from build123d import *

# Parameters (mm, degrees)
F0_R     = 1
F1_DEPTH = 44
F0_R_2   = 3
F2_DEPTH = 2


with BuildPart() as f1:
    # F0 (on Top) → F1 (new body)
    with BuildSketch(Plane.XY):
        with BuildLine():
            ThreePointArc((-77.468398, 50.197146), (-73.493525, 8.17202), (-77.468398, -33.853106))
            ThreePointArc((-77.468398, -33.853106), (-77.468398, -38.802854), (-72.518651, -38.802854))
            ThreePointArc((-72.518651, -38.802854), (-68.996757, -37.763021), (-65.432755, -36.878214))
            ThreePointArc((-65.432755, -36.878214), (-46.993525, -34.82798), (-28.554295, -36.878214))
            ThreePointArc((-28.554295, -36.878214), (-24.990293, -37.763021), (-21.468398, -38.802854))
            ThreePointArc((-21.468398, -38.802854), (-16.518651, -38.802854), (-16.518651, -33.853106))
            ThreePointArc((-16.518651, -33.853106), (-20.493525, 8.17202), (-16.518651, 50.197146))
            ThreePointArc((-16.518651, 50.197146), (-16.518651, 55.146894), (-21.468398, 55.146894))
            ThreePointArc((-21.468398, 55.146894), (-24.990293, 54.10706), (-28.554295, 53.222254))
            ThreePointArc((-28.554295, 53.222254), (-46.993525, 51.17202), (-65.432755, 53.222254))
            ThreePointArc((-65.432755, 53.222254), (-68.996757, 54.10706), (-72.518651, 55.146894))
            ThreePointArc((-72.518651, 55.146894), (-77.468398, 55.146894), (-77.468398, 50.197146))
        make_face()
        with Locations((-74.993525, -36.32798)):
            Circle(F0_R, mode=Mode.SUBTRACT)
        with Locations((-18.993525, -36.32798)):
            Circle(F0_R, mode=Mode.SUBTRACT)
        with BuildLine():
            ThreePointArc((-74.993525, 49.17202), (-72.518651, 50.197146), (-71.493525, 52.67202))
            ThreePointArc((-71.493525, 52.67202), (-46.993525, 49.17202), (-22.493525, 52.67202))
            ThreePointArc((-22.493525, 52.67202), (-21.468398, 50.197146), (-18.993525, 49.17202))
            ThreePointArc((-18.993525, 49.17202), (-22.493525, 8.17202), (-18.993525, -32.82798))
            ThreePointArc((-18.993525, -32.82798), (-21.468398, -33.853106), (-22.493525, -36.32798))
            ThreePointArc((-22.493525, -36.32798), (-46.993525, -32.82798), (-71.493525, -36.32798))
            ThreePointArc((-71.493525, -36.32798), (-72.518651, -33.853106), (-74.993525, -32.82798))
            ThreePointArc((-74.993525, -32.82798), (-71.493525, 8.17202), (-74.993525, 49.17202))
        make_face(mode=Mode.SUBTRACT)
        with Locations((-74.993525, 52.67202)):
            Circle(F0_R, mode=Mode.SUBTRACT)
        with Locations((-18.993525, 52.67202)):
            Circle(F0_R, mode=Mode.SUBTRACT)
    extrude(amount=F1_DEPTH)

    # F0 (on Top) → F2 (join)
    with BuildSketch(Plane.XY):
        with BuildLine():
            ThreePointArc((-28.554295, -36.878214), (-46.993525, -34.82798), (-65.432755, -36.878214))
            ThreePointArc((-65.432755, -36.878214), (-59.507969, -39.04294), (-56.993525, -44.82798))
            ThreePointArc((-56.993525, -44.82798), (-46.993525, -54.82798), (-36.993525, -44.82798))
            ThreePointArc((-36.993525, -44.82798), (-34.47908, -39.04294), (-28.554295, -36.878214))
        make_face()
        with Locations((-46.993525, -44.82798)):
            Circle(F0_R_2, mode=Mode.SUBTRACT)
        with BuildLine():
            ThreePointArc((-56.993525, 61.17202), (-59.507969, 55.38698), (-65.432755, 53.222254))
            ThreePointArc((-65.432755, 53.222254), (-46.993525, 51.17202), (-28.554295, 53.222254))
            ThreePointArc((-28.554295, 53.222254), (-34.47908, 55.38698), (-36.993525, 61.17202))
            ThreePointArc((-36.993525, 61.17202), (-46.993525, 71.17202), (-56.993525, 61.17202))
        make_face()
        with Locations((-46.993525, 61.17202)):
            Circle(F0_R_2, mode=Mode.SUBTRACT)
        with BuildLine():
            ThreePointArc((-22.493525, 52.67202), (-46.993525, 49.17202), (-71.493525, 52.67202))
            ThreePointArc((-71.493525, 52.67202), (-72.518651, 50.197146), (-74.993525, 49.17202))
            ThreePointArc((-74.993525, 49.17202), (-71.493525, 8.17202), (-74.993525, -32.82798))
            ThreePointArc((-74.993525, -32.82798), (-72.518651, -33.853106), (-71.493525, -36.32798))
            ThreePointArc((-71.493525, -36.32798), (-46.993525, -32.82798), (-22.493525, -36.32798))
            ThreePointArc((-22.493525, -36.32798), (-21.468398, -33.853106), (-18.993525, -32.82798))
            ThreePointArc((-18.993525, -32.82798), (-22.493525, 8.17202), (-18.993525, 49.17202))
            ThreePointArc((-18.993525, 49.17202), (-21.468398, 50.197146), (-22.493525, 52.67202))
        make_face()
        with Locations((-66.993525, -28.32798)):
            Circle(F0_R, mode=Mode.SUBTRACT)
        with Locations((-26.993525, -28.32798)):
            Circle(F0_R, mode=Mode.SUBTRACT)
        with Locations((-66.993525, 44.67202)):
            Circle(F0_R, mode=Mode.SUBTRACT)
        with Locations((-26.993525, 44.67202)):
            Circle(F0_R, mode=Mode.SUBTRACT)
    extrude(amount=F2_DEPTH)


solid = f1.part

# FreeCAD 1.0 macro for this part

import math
import FreeCAD as App
import Part
import Sketcher

V = App.Vector
Q = App.Units.Quantity

doc = App.newDocument("Part")
params = doc.addObject("Spreadsheet::Sheet", "Params")
for row, (alias, value) in enumerate([
    ("sketch1_diameter", "2 mm"),
    ("sketch1_diameter2", "2 mm"),
    ("sketch1_diameter3", "2 mm"),
    ("sketch1_diameter4", "2 mm"),
    ("sketch1_radius", "3.5 mm"),
    ("pad1_length", "44 mm"),
    ("sketch2_diameter", "6 mm"),
    ("sketch2_diameter2", "2 mm"),
    ("sketch2_radius", "7.999999 mm"),
    ("sketch2_radius2", "10 mm"),
    ("sketch2_radius3", "87.5 mm"),
    ("pad2_length", "2 mm"),
], start=1):
    params.set(f"A{row}", alias)
    params.set(f"B{row}", "=" + value)
    params.setAlias(f"B{row}", alias)

body = doc.addObject("PartDesign::Body", "Body")

# Sketch on XY plane
sketch1 = body.newObject("Sketcher::SketchObject", "Sketch")
sketch1.AttachmentSupport = (doc.getObject("XY_Plane"), [""])
sketch1.MapMode = "FlatFace"
sketch1.addGeometry([
    Part.ArcOfCircle(Part.Circle(V(-297.640414, 8.17202, 0), V(0, 0, 1), 224.146889), math.radians(-10.806294), math.radians(10.806294)),  # 0
    Part.ArcOfCircle(Part.Circle(V(-74.993525, -36.32798, 0), V(0, 0, 1), 3.5), math.radians(134.999994), math.radians(314.999994)),  # 1
    Part.ArcOfCircle(Part.Circle(V(-46.993488, -118.771872, 0), V(0, 0, 1), 83.943897), math.radians(102.689169), math.radians(107.702467)),  # 2
    Part.ArcOfCircle(Part.Circle(V(-46.993525, -118.77173, 0), V(0, 0, 1), 83.94375), math.radians(77.310834), math.radians(102.689166)),  # 3
    Part.ArcOfCircle(Part.Circle(V(-46.993601, -118.772027, 0), V(0, 0, 1), 83.944056), math.radians(72.297539), math.radians(77.310828)),  # 4
    Part.ArcOfCircle(Part.Circle(V(-18.993524, -36.32798, 0), V(0, 0, 1), 3.5), math.radians(-134.999994), math.radians(45.000006)),  # 5
    Part.ArcOfCircle(Part.Circle(V(203.653308, 8.17202, 0), V(0, 0, 1), 224.146833), math.radians(169.193703), math.radians(190.806297)),  # 6
    Part.ArcOfCircle(Part.Circle(V(-18.993524, 52.67202, 0), V(0, 0, 1), 3.5), math.radians(-45.000006), math.radians(134.999994)),  # 7
    Part.ArcOfCircle(Part.Circle(V(-46.993336, 135.115093, 0), V(0, 0, 1), 83.943048), math.radians(-77.310858), math.radians(-72.297509)),  # 8
    Part.ArcOfCircle(Part.Circle(V(-46.993525, 135.11577, 0), V(0, 0, 1), 83.94375), math.radians(-102.689166), math.radians(-77.310834)),  # 9
    Part.ArcOfCircle(Part.Circle(V(-46.993752, 135.114939, 0), V(0, 0, 1), 83.942889), math.radians(-107.702497), math.radians(-102.689139)),  # 10
    Part.ArcOfCircle(Part.Circle(V(-74.993525, 52.67202, 0), V(0, 0, 1), 3.5), math.radians(45.000006), math.radians(225.000006)),  # 11
    Part.Circle(V(-74.993525, -36.32798, 0), V(0, 0, 1), 1),  # 12
    Part.Circle(V(-18.993525, -36.32798, 0), V(0, 0, 1), 1),  # 13
    Part.Circle(V(-74.993525, 52.67202, 0), V(0, 0, 1), 1),  # 14
    Part.ArcOfCircle(Part.Circle(V(-313.386382, 8.17202, 0), V(0, 0, 1), 241.892857), math.radians(-9.758548), math.radians(9.758548)),  # 15
    Part.ArcOfCircle(Part.Circle(V(-74.993524, 52.672019, 0), V(0, 0, 1), 3.499999), math.radians(-90.000015), math.radians(0.000015)),  # 16
    Part.ArcOfCircle(Part.Circle(V(-46.993525, 136.67202, 0), V(0, 0, 1), 87.5), math.radians(-106.260205), math.radians(-73.739795)),  # 17
    Part.ArcOfCircle(Part.Circle(V(-18.993524, 52.672021, 0), V(0, 0, 1), 3.500001), math.radians(-179.999987), math.radians(-90.000013)),  # 18
    Part.ArcOfCircle(Part.Circle(V(219.399332, 8.17202, 0), V(0, 0, 1), 241.892857), math.radians(170.241452), math.radians(189.758548)),  # 19
    Part.ArcOfCircle(Part.Circle(V(-18.993524, -36.327981, 0), V(0, 0, 1), 3.500001), math.radians(90.000013), math.radians(179.999987)),  # 20
    Part.ArcOfCircle(Part.Circle(V(-46.993525, -120.32798, 0), V(0, 0, 1), 87.5), math.radians(73.739795), math.radians(106.260205)),  # 21
    Part.ArcOfCircle(Part.Circle(V(-74.993524, -36.327979, 0), V(0, 0, 1), 3.499999), math.radians(-0.000015), math.radians(90.000015)),  # 22
    Part.Circle(V(-18.993525, 52.67202, 0), V(0, 0, 1), 1),  # 23
], False)
sketch1.addConstraint([
    Sketcher.Constraint("Coincident", 0, 1, 1, 1),
    Sketcher.Constraint("Coincident", 1, 2, 2, 2),
    Sketcher.Constraint("Coincident", 2, 1, 3, 2),
    Sketcher.Constraint("Coincident", 3, 1, 4, 2),
    Sketcher.Constraint("Coincident", 4, 1, 5, 1),
    Sketcher.Constraint("Coincident", 5, 2, 6, 2),
    Sketcher.Constraint("Coincident", 6, 1, 7, 1),
    Sketcher.Constraint("Coincident", 7, 2, 8, 2),
    Sketcher.Constraint("Coincident", 8, 1, 9, 2),
    Sketcher.Constraint("Coincident", 9, 1, 10, 2),
    Sketcher.Constraint("Coincident", 10, 1, 11, 1),
    Sketcher.Constraint("Coincident", 11, 2, 0, 2),
    Sketcher.Constraint("Coincident", 15, 2, 16, 1),
    Sketcher.Constraint("Coincident", 16, 2, 17, 1),
    Sketcher.Constraint("Coincident", 17, 2, 18, 1),
    Sketcher.Constraint("Coincident", 18, 2, 19, 1),
    Sketcher.Constraint("Coincident", 19, 2, 20, 1),
    Sketcher.Constraint("Coincident", 20, 2, 21, 1),
    Sketcher.Constraint("Coincident", 21, 2, 22, 1),
    Sketcher.Constraint("Coincident", 22, 2, 15, 1),
    Sketcher.Constraint("Coincident", 12, 3, 1, 3),
    Sketcher.Constraint("Coincident", 13, 3, 5, 3),
    Sketcher.Constraint("Coincident", 14, 3, 11, 3),
    Sketcher.Constraint("Coincident", 16, 3, 11, 3),
    Sketcher.Constraint("Coincident", 18, 3, 7, 3),
    Sketcher.Constraint("Coincident", 20, 3, 5, 3),
    Sketcher.Constraint("Coincident", 22, 3, 1, 3),
    Sketcher.Constraint("Coincident", 23, 3, 7, 3),
    Sketcher.Constraint("Diameter", 12, Q("2 mm")),
    Sketcher.Constraint("Diameter", 13, Q("2 mm")),
    Sketcher.Constraint("Diameter", 14, Q("2 mm")),
    Sketcher.Constraint("Diameter", 23, Q("2 mm")),
    Sketcher.Constraint("Radius", 1, Q("3.5 mm")),
    Sketcher.Constraint("Radius", 5, Q("3.5 mm")),
    Sketcher.Constraint("Radius", 7, Q("3.5 mm")),
    Sketcher.Constraint("Radius", 11, Q("3.5 mm")),
    Sketcher.Constraint("Radius", 16, Q("3.499999 mm")),
    Sketcher.Constraint("Radius", 17, Q("87.5 mm")),
    Sketcher.Constraint("Radius", 18, Q("3.500001 mm")),
    Sketcher.Constraint("Radius", 20, Q("3.500001 mm")),
    Sketcher.Constraint("Radius", 21, Q("87.5 mm")),
    Sketcher.Constraint("Radius", 22, Q("3.499999 mm")),
    Sketcher.Constraint("DistanceX", 1, 3, 3, 3, Q("28 mm")),
    Sketcher.Constraint("DistanceX", 1, 3, 5, 3, Q("56 mm")),
    Sketcher.Constraint("DistanceY", 5, 3, 7, 3, Q("89 mm")),
    Sketcher.Constraint("DistanceX", 1, 3, 7, 3, Q("56 mm")),
    Sketcher.Constraint("DistanceY", 1, 3, 7, 3, Q("89 mm")),
    Sketcher.Constraint("DistanceX", 9, 3, 7, 3, Q("28 mm")),
    Sketcher.Constraint("DistanceX", 11, 3, 7, 3, Q("56 mm")),
    Sketcher.Constraint("DistanceY", 1, 3, 11, 3, Q("89 mm")),
    Sketcher.Constraint("DistanceX", 11, 3, 17, 3, Q("28 mm")),
    Sketcher.Constraint("DistanceY", 11, 3, 17, 3, Q("84 mm")),
    Sketcher.Constraint("DistanceX", 21, 3, 20, 3, Q("28.000001 mm")),
    Sketcher.Constraint("DistanceY", 21, 3, 20, 3, Q("83.999999 mm")),
    Sketcher.Constraint("DistanceY", 1, 3, 0, 3, Q("44.5 mm")),
    Sketcher.Constraint("DistanceY", 5, 3, 6, 3, Q("44.5 mm")),
    Sketcher.Constraint("DistanceY", 12, 3, 15, 3, Q("44.5 mm")),
    Sketcher.Constraint("DistanceY", 19, 3, 18, 3, Q("44.500001 mm")),
    Sketcher.Constraint("DistanceX", 15, 2, 16, 2, Q("3.5 mm")),
    Sketcher.Constraint("DistanceX", 17, 2, 18, 2, Q("3.5 mm")),
    Sketcher.Constraint("Radius", 0, Q("224.146889 mm")),
    Sketcher.Constraint("Radius", 3, Q("83.94375 mm")),
    Sketcher.Constraint("Radius", 8, Q("83.943048 mm")),
    Sketcher.Constraint("Radius", 9, Q("83.94375 mm")),
    Sketcher.Constraint("Radius", 10, Q("83.942889 mm")),
    Sketcher.Constraint("Radius", 2, Q("83.943897 mm")),
    Sketcher.Constraint("Radius", 4, Q("83.944056 mm")),
    Sketcher.Constraint("Radius", 6, Q("224.146833 mm")),
    Sketcher.Constraint("Radius", 15, Q("241.892857 mm")),
    Sketcher.Constraint("Radius", 19, Q("241.892857 mm")),
    Sketcher.Constraint("DistanceX", 4, 3, -1, 1, Q("46.993601 mm")),
    Sketcher.Constraint("DistanceX", 0, 1, -1, 1, Q("77.468398 mm")),
    Sketcher.Constraint("DistanceY", 3, 3, 9, 3, Q("253.887501 mm")),
    Sketcher.Constraint("DistanceY", -1, 1, 0, 3, Q("8.17202 mm")),
    Sketcher.Constraint("DistanceY", 3, 3, -1, 1, Q("118.77173 mm")),
    Sketcher.Constraint("DistanceX", -1, 1, 6, 3, Q("203.653308 mm")),
    Sketcher.Constraint("DistanceY", -1, 1, 10, 3, Q("135.114939 mm")),
    Sketcher.Constraint("DistanceX", 1, 2, -1, 1, Q("72.518651 mm")),
    Sketcher.Constraint("DistanceX", 5, 2, -1, 1, Q("16.518651 mm")),
    Sketcher.Constraint("DistanceX", 8, 3, 7, 3, Q("27.999812 mm")),
    Sketcher.Constraint("DistanceY", 1, 2, 2, 1, Q("1.92464 mm")),
    Sketcher.Constraint("DistanceX", 3, 1, 13, 3, Q("9.56077 mm")),
    Sketcher.Constraint("DistanceY", 8, 1, 7, 2, Q("1.92464 mm")),
    Sketcher.Constraint("DistanceX", 16, 3, 9, 1, Q("9.560769 mm")),
])
sketch1.setExpression("Constraints[28]", "Params.sketch1_diameter")
sketch1.setExpression("Constraints[29]", "Params.sketch1_diameter2")
sketch1.setExpression("Constraints[30]", "Params.sketch1_diameter3")
sketch1.setExpression("Constraints[31]", "Params.sketch1_diameter4")
sketch1.setExpression("Constraints[32]", "Params.sketch1_radius")
pad1 = body.newObject("PartDesign::Pad", "Pad")
pad1.Profile = sketch1
pad1.setExpression("Length", "Params.pad1_length")

# Sketch on XY plane
sketch2 = body.newObject("Sketcher::SketchObject", "Sketch001")
sketch2.AttachmentSupport = (doc.getObject("XY_Plane"), [""])
sketch2.MapMode = "FlatFace"
sketch2.addGeometry([
    Part.ArcOfCircle(Part.Circle(V(-46.993525, -118.77173, 0), V(0, 0, 1), 83.94375), math.radians(77.310834), math.radians(102.689166)),  # 0
    Part.ArcOfCircle(Part.Circle(V(-64.993433, -44.866141, 0), V(0, 0, 1), 7.999999), math.radians(0.273307), math.radians(93.147999)),  # 1
    Part.ArcOfCircle(Part.Circle(V(-46.993525, -44.82798, 0), V(0, 0, 1), 10), math.radians(180), math.radians(360)),  # 2
    Part.ArcOfCircle(Part.Circle(V(-28.993616, -44.866142, 0), V(0, 0, 1), 8), math.radians(86.852012), math.radians(179.726681)),  # 3
    Part.Circle(V(-46.993525, -44.82798, 0), V(0, 0, 1), 3),  # 4
    Part.ArcOfCircle(Part.Circle(V(-64.993433, 61.210181, 0), V(0, 0, 1), 7.999999), math.radians(-93.147999), math.radians(-0.273307)),  # 5
    Part.ArcOfCircle(Part.Circle(V(-46.993525, 135.11577, 0), V(0, 0, 1), 83.94375), math.radians(-102.689166), math.radians(-77.310834)),  # 6
    Part.ArcOfCircle(Part.Circle(V(-28.993616, 61.210182, 0), V(0, 0, 1), 8), math.radians(-179.726681), math.radians(-86.852012)),  # 7
    Part.ArcOfCircle(Part.Circle(V(-46.993525, 61.17202, 0), V(0, 0, 1), 10), math.radians(0), math.radians(180)),  # 8
    Part.Circle(V(-46.993525, 61.17202, 0), V(0, 0, 1), 3),  # 9
    Part.ArcOfCircle(Part.Circle(V(-46.993525, 136.67202, 0), V(0, 0, 1), 87.5), math.radians(-106.260205), math.radians(-73.739795)),  # 10
    Part.ArcOfCircle(Part.Circle(V(-74.993524, 52.672019, 0), V(0, 0, 1), 3.499999), math.radians(-90.000015), math.radians(0.000015)),  # 11
    Part.ArcOfCircle(Part.Circle(V(-313.386382, 8.17202, 0), V(0, 0, 1), 241.892857), math.radians(-9.758548), math.radians(9.758548)),  # 12
    Part.ArcOfCircle(Part.Circle(V(-74.993524, -36.327979, 0), V(0, 0, 1), 3.499999), math.radians(-0.000015), math.radians(90.000015)),  # 13
    Part.ArcOfCircle(Part.Circle(V(-46.993525, -120.32798, 0), V(0, 0, 1), 87.5), math.radians(73.739795), math.radians(106.260205)),  # 14
    Part.ArcOfCircle(Part.Circle(V(-18.993524, -36.327981, 0), V(0, 0, 1), 3.500001), math.radians(90.000013), math.radians(179.999987)),  # 15
    Part.ArcOfCircle(Part.Circle(V(219.399332, 8.17202, 0), V(0, 0, 1), 241.892857), math.radians(170.241452), math.radians(189.758548)),  # 16
    Part.ArcOfCircle(Part.Circle(V(-18.993524, 52.672021, 0), V(0, 0, 1), 3.500001), math.radians(-179.999987), math.radians(-90.000013)),  # 17
    Part.Circle(V(-66.993525, -28.32798, 0), V(0, 0, 1), 1),  # 18
    Part.Circle(V(-26.993525, -28.32798, 0), V(0, 0, 1), 1),  # 19
    Part.Circle(V(-66.993525, 44.67202, 0), V(0, 0, 1), 1),  # 20
    Part.Circle(V(-26.993525, 44.67202, 0), V(0, 0, 1), 1),  # 21
], False)
sketch2.addConstraint([
    Sketcher.Constraint("Coincident", 0, 2, 1, 2),
    Sketcher.Constraint("Coincident", 1, 1, 2, 1),
    Sketcher.Constraint("Coincident", 2, 2, 3, 2),
    Sketcher.Constraint("Coincident", 3, 1, 0, 1),
    Sketcher.Constraint("Coincident", 5, 1, 6, 1),
    Sketcher.Constraint("Coincident", 6, 2, 7, 2),
    Sketcher.Constraint("Coincident", 7, 1, 8, 1),
    Sketcher.Constraint("Coincident", 8, 2, 5, 2),
    Sketcher.Constraint("Coincident", 10, 1, 11, 2),
    Sketcher.Constraint("Coincident", 11, 1, 12, 2),
    Sketcher.Constraint("Coincident", 12, 1, 13, 2),
    Sketcher.Constraint("Coincident", 13, 1, 14, 2),
    Sketcher.Constraint("Coincident", 14, 1, 15, 2),
    Sketcher.Constraint("Coincident", 15, 1, 16, 2),
    Sketcher.Constraint("Coincident", 16, 1, 17, 2),
    Sketcher.Constraint("Coincident", 17, 1, 10, 2),
    Sketcher.Constraint("Coincident", 4, 3, 2, 3),
    Sketcher.Constraint("Coincident", 9, 3, 8, 3),
    Sketcher.Constraint("Equal", 1, 3),
    Sketcher.Constraint("Equal", 3, 5),
    Sketcher.Constraint("Equal", 0, 6),
    Sketcher.Constraint("Equal", 5, 7),
    Sketcher.Constraint("Equal", 2, 8),
    Sketcher.Constraint("Equal", 4, 9),
    Sketcher.Constraint("Equal", 11, 13),
    Sketcher.Constraint("Equal", 10, 14),
    Sketcher.Constraint("Equal", 13, 15),
    Sketcher.Constraint("Equal", 12, 16),
    Sketcher.Constraint("Equal", 15, 17),
    Sketcher.Constraint("Equal", 18, 19),
    Sketcher.Constraint("Equal", 19, 20),
    Sketcher.Constraint("Equal", 20, 21),
    Sketcher.Constraint("Horizontal", 1, 3, 3, 3),
    Sketcher.Constraint("Horizontal", 5, 3, 7, 3),
    Sketcher.Constraint("Horizontal", 13, 3, 15, 3),
    Sketcher.Constraint("Horizontal", 12, 3, 16, 3),
    Sketcher.Constraint("Horizontal", 11, 3, 17, 3),
    Sketcher.Constraint("Horizontal", 18, 3, 19, 3),
    Sketcher.Constraint("Horizontal", 20, 3, 21, 3),
    Sketcher.Constraint("Horizontal", 4, 3, 1, 1),
    Sketcher.Constraint("Horizontal", 1, 1, 2, 2),
    Sketcher.Constraint("Horizontal", 0, 2, 3, 1),
    Sketcher.Constraint("Horizontal", 5, 1, 6, 2),
    Sketcher.Constraint("Horizontal", 9, 3, 7, 1),
    Sketcher.Constraint("Horizontal", 7, 1, 8, 2),
    Sketcher.Constraint("Horizontal", 17, 3, 10, 1),
    Sketcher.Constraint("Horizontal", 15, 3, 13, 1),
    Sketcher.Constraint("Horizontal", 13, 1, 14, 1),
    Sketcher.Constraint("Horizontal", 10, 1, 17, 1),
    Sketcher.Constraint("Vertical", 1, 3, 5, 3),
    Sketcher.Constraint("Vertical", 4, 3, 6, 3),
    Sketcher.Constraint("Vertical", 9, 3, 10, 3),
    Sketcher.Constraint("Vertical", 11, 3, 13, 3),
    Sketcher.Constraint("Vertical", 10, 3, 14, 3),
    Sketcher.Constraint("Vertical", 18, 3, 20, 3),
    Sketcher.Constraint("Vertical", 19, 3, 21, 3),
    Sketcher.Constraint("Vertical", 0, 2, 5, 1),
    Sketcher.Constraint("Vertical", 13, 3, 11, 1),
    Sketcher.Constraint("Vertical", 11, 1, 12, 1),
    Sketcher.Constraint("Vertical", 17, 3, 15, 1),
    Sketcher.Constraint("Diameter", 4, Q("6 mm")),
    Sketcher.Constraint("Diameter", 18, Q("2 mm")),
    Sketcher.Constraint("Radius", 1, Q("7.999999 mm")),
    Sketcher.Constraint("Radius", 2, Q("10 mm")),
    Sketcher.Constraint("Radius", 10, Q("87.5 mm")),
    Sketcher.Constraint("Radius", 11, Q("3.499999 mm")),
    Sketcher.Constraint("DistanceY", 2, 3, 8, 3, Q("106 mm")),
    Sketcher.Constraint("DistanceX", 11, 3, 8, 3, Q("27.999999 mm")),
    Sketcher.Constraint("DistanceY", 2, 3, 12, 3, Q("53 mm")),
    Sketcher.Constraint("DistanceX", 13, 3, 18, 3, Q("7.999999 mm")),
    Sketcher.Constraint("DistanceY", 13, 3, 18, 3, Q("7.999999 mm")),
    Sketcher.Constraint("DistanceX", 19, 3, 15, 3, Q("8.000001 mm")),
    Sketcher.Constraint("DistanceY", 20, 3, 11, 3, Q("7.999999 mm")),
    Sketcher.Constraint("DistanceY", 8, 3, 10, 3, Q("75.5 mm")),
    Sketcher.Constraint("Radius", 0, Q("83.94375 mm")),
    Sketcher.Constraint("Radius", 12, Q("241.892857 mm")),
    Sketcher.Constraint("DistanceY", 0, 3, -1, 1, Q("118.77173 mm")),
    Sketcher.Constraint("DistanceY", 1, 3, -1, 1, Q("44.866141 mm")),
    Sketcher.Constraint("DistanceY", 2, 3, -1, 1, Q("44.82798 mm")),
    Sketcher.Constraint("DistanceX", 0, 3, -1, 1, Q("46.993525 mm")),
])
sketch2.setExpression("Constraints[60]", "Params.sketch2_diameter")
sketch2.setExpression("Constraints[61]", "Params.sketch2_diameter2")
sketch2.setExpression("Constraints[62]", "Params.sketch2_radius")
sketch2.setExpression("Constraints[63]", "Params.sketch2_radius2")
sketch2.setExpression("Constraints[64]", "Params.sketch2_radius3")
pad2 = body.newObject("PartDesign::Pad", "Pad001")
pad2.Profile = sketch2
pad2.setExpression("Length", "Params.pad2_length")

doc.recompute()
